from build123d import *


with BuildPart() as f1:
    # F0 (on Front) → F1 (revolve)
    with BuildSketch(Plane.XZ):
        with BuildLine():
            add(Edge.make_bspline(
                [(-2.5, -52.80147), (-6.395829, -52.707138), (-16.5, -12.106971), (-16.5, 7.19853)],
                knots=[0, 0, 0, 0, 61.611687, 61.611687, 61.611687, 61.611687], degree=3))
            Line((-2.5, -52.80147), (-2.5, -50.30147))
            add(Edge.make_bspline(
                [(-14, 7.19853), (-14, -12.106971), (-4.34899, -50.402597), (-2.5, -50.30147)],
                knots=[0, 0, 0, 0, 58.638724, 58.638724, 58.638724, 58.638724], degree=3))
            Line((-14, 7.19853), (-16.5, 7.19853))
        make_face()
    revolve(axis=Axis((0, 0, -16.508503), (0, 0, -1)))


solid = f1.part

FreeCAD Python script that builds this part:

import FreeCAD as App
import Part
import Sketcher

doc = App.newDocument("Part")
body = doc.addObject("PartDesign::Body", "Body")

# Sketch on XZ plane
sketch1 = body.newObject("Sketcher::SketchObject", "Sketch")
sketch1.AttachmentSupport = (doc.getObject("XZ_Plane"), [""])
sketch1.MapMode = "FlatFace"
sketch1.addGeometry(Part.BSplineCurve([App.Vector(-2.5, -52.80147, 0), App.Vector(-6.395829, -52.707138, 0), App.Vector(-16.5, -12.106971, 0), App.Vector(-16.5, 7.19853, 0)], [4, 4], [0, 61.611687], False, 3, [1, 1, 1, 1], False), False)
sketch1.addGeometry(Part.LineSegment(App.Vector(-2.5, -52.80147, 0), App.Vector(-2.5, -50.30147, 0)), False)
sketch1.addGeometry(Part.BSplineCurve([App.Vector(-14, 7.19853, 0), App.Vector(-14, -12.106971, 0), App.Vector(-4.34899, -50.402597, 0), App.Vector(-2.5, -50.30147, 0)], [4, 4], [0, 58.638724], False, 3, [1, 1, 1, 1], False), False)
sketch1.addGeometry(Part.LineSegment(App.Vector(-14, 7.19853, 0), App.Vector(-16.5, 7.19853, 0)), False)
sketch1.addConstraint(Sketcher.Constraint("Block", 0))
sketch1.addConstraint(Sketcher.Constraint("Block", 2))
sketch1.addConstraint(Sketcher.Constraint("Coincident", 0, 1, 1, 1))
sketch1.addConstraint(Sketcher.Constraint("Coincident", 1, 2, 2, 2))
sketch1.addConstraint(Sketcher.Constraint("Coincident", 2, 1, 3, 1))
sketch1.addConstraint(Sketcher.Constraint("Coincident", 3, 2, 0, 2))
revolution = body.newObject("PartDesign::Revolution", "Revolution")
revolution.Profile = sketch1
revolution.ReferenceAxis = (sketch1, ["V_Axis"])
revolution.Angle = 360

doc.recompute()
